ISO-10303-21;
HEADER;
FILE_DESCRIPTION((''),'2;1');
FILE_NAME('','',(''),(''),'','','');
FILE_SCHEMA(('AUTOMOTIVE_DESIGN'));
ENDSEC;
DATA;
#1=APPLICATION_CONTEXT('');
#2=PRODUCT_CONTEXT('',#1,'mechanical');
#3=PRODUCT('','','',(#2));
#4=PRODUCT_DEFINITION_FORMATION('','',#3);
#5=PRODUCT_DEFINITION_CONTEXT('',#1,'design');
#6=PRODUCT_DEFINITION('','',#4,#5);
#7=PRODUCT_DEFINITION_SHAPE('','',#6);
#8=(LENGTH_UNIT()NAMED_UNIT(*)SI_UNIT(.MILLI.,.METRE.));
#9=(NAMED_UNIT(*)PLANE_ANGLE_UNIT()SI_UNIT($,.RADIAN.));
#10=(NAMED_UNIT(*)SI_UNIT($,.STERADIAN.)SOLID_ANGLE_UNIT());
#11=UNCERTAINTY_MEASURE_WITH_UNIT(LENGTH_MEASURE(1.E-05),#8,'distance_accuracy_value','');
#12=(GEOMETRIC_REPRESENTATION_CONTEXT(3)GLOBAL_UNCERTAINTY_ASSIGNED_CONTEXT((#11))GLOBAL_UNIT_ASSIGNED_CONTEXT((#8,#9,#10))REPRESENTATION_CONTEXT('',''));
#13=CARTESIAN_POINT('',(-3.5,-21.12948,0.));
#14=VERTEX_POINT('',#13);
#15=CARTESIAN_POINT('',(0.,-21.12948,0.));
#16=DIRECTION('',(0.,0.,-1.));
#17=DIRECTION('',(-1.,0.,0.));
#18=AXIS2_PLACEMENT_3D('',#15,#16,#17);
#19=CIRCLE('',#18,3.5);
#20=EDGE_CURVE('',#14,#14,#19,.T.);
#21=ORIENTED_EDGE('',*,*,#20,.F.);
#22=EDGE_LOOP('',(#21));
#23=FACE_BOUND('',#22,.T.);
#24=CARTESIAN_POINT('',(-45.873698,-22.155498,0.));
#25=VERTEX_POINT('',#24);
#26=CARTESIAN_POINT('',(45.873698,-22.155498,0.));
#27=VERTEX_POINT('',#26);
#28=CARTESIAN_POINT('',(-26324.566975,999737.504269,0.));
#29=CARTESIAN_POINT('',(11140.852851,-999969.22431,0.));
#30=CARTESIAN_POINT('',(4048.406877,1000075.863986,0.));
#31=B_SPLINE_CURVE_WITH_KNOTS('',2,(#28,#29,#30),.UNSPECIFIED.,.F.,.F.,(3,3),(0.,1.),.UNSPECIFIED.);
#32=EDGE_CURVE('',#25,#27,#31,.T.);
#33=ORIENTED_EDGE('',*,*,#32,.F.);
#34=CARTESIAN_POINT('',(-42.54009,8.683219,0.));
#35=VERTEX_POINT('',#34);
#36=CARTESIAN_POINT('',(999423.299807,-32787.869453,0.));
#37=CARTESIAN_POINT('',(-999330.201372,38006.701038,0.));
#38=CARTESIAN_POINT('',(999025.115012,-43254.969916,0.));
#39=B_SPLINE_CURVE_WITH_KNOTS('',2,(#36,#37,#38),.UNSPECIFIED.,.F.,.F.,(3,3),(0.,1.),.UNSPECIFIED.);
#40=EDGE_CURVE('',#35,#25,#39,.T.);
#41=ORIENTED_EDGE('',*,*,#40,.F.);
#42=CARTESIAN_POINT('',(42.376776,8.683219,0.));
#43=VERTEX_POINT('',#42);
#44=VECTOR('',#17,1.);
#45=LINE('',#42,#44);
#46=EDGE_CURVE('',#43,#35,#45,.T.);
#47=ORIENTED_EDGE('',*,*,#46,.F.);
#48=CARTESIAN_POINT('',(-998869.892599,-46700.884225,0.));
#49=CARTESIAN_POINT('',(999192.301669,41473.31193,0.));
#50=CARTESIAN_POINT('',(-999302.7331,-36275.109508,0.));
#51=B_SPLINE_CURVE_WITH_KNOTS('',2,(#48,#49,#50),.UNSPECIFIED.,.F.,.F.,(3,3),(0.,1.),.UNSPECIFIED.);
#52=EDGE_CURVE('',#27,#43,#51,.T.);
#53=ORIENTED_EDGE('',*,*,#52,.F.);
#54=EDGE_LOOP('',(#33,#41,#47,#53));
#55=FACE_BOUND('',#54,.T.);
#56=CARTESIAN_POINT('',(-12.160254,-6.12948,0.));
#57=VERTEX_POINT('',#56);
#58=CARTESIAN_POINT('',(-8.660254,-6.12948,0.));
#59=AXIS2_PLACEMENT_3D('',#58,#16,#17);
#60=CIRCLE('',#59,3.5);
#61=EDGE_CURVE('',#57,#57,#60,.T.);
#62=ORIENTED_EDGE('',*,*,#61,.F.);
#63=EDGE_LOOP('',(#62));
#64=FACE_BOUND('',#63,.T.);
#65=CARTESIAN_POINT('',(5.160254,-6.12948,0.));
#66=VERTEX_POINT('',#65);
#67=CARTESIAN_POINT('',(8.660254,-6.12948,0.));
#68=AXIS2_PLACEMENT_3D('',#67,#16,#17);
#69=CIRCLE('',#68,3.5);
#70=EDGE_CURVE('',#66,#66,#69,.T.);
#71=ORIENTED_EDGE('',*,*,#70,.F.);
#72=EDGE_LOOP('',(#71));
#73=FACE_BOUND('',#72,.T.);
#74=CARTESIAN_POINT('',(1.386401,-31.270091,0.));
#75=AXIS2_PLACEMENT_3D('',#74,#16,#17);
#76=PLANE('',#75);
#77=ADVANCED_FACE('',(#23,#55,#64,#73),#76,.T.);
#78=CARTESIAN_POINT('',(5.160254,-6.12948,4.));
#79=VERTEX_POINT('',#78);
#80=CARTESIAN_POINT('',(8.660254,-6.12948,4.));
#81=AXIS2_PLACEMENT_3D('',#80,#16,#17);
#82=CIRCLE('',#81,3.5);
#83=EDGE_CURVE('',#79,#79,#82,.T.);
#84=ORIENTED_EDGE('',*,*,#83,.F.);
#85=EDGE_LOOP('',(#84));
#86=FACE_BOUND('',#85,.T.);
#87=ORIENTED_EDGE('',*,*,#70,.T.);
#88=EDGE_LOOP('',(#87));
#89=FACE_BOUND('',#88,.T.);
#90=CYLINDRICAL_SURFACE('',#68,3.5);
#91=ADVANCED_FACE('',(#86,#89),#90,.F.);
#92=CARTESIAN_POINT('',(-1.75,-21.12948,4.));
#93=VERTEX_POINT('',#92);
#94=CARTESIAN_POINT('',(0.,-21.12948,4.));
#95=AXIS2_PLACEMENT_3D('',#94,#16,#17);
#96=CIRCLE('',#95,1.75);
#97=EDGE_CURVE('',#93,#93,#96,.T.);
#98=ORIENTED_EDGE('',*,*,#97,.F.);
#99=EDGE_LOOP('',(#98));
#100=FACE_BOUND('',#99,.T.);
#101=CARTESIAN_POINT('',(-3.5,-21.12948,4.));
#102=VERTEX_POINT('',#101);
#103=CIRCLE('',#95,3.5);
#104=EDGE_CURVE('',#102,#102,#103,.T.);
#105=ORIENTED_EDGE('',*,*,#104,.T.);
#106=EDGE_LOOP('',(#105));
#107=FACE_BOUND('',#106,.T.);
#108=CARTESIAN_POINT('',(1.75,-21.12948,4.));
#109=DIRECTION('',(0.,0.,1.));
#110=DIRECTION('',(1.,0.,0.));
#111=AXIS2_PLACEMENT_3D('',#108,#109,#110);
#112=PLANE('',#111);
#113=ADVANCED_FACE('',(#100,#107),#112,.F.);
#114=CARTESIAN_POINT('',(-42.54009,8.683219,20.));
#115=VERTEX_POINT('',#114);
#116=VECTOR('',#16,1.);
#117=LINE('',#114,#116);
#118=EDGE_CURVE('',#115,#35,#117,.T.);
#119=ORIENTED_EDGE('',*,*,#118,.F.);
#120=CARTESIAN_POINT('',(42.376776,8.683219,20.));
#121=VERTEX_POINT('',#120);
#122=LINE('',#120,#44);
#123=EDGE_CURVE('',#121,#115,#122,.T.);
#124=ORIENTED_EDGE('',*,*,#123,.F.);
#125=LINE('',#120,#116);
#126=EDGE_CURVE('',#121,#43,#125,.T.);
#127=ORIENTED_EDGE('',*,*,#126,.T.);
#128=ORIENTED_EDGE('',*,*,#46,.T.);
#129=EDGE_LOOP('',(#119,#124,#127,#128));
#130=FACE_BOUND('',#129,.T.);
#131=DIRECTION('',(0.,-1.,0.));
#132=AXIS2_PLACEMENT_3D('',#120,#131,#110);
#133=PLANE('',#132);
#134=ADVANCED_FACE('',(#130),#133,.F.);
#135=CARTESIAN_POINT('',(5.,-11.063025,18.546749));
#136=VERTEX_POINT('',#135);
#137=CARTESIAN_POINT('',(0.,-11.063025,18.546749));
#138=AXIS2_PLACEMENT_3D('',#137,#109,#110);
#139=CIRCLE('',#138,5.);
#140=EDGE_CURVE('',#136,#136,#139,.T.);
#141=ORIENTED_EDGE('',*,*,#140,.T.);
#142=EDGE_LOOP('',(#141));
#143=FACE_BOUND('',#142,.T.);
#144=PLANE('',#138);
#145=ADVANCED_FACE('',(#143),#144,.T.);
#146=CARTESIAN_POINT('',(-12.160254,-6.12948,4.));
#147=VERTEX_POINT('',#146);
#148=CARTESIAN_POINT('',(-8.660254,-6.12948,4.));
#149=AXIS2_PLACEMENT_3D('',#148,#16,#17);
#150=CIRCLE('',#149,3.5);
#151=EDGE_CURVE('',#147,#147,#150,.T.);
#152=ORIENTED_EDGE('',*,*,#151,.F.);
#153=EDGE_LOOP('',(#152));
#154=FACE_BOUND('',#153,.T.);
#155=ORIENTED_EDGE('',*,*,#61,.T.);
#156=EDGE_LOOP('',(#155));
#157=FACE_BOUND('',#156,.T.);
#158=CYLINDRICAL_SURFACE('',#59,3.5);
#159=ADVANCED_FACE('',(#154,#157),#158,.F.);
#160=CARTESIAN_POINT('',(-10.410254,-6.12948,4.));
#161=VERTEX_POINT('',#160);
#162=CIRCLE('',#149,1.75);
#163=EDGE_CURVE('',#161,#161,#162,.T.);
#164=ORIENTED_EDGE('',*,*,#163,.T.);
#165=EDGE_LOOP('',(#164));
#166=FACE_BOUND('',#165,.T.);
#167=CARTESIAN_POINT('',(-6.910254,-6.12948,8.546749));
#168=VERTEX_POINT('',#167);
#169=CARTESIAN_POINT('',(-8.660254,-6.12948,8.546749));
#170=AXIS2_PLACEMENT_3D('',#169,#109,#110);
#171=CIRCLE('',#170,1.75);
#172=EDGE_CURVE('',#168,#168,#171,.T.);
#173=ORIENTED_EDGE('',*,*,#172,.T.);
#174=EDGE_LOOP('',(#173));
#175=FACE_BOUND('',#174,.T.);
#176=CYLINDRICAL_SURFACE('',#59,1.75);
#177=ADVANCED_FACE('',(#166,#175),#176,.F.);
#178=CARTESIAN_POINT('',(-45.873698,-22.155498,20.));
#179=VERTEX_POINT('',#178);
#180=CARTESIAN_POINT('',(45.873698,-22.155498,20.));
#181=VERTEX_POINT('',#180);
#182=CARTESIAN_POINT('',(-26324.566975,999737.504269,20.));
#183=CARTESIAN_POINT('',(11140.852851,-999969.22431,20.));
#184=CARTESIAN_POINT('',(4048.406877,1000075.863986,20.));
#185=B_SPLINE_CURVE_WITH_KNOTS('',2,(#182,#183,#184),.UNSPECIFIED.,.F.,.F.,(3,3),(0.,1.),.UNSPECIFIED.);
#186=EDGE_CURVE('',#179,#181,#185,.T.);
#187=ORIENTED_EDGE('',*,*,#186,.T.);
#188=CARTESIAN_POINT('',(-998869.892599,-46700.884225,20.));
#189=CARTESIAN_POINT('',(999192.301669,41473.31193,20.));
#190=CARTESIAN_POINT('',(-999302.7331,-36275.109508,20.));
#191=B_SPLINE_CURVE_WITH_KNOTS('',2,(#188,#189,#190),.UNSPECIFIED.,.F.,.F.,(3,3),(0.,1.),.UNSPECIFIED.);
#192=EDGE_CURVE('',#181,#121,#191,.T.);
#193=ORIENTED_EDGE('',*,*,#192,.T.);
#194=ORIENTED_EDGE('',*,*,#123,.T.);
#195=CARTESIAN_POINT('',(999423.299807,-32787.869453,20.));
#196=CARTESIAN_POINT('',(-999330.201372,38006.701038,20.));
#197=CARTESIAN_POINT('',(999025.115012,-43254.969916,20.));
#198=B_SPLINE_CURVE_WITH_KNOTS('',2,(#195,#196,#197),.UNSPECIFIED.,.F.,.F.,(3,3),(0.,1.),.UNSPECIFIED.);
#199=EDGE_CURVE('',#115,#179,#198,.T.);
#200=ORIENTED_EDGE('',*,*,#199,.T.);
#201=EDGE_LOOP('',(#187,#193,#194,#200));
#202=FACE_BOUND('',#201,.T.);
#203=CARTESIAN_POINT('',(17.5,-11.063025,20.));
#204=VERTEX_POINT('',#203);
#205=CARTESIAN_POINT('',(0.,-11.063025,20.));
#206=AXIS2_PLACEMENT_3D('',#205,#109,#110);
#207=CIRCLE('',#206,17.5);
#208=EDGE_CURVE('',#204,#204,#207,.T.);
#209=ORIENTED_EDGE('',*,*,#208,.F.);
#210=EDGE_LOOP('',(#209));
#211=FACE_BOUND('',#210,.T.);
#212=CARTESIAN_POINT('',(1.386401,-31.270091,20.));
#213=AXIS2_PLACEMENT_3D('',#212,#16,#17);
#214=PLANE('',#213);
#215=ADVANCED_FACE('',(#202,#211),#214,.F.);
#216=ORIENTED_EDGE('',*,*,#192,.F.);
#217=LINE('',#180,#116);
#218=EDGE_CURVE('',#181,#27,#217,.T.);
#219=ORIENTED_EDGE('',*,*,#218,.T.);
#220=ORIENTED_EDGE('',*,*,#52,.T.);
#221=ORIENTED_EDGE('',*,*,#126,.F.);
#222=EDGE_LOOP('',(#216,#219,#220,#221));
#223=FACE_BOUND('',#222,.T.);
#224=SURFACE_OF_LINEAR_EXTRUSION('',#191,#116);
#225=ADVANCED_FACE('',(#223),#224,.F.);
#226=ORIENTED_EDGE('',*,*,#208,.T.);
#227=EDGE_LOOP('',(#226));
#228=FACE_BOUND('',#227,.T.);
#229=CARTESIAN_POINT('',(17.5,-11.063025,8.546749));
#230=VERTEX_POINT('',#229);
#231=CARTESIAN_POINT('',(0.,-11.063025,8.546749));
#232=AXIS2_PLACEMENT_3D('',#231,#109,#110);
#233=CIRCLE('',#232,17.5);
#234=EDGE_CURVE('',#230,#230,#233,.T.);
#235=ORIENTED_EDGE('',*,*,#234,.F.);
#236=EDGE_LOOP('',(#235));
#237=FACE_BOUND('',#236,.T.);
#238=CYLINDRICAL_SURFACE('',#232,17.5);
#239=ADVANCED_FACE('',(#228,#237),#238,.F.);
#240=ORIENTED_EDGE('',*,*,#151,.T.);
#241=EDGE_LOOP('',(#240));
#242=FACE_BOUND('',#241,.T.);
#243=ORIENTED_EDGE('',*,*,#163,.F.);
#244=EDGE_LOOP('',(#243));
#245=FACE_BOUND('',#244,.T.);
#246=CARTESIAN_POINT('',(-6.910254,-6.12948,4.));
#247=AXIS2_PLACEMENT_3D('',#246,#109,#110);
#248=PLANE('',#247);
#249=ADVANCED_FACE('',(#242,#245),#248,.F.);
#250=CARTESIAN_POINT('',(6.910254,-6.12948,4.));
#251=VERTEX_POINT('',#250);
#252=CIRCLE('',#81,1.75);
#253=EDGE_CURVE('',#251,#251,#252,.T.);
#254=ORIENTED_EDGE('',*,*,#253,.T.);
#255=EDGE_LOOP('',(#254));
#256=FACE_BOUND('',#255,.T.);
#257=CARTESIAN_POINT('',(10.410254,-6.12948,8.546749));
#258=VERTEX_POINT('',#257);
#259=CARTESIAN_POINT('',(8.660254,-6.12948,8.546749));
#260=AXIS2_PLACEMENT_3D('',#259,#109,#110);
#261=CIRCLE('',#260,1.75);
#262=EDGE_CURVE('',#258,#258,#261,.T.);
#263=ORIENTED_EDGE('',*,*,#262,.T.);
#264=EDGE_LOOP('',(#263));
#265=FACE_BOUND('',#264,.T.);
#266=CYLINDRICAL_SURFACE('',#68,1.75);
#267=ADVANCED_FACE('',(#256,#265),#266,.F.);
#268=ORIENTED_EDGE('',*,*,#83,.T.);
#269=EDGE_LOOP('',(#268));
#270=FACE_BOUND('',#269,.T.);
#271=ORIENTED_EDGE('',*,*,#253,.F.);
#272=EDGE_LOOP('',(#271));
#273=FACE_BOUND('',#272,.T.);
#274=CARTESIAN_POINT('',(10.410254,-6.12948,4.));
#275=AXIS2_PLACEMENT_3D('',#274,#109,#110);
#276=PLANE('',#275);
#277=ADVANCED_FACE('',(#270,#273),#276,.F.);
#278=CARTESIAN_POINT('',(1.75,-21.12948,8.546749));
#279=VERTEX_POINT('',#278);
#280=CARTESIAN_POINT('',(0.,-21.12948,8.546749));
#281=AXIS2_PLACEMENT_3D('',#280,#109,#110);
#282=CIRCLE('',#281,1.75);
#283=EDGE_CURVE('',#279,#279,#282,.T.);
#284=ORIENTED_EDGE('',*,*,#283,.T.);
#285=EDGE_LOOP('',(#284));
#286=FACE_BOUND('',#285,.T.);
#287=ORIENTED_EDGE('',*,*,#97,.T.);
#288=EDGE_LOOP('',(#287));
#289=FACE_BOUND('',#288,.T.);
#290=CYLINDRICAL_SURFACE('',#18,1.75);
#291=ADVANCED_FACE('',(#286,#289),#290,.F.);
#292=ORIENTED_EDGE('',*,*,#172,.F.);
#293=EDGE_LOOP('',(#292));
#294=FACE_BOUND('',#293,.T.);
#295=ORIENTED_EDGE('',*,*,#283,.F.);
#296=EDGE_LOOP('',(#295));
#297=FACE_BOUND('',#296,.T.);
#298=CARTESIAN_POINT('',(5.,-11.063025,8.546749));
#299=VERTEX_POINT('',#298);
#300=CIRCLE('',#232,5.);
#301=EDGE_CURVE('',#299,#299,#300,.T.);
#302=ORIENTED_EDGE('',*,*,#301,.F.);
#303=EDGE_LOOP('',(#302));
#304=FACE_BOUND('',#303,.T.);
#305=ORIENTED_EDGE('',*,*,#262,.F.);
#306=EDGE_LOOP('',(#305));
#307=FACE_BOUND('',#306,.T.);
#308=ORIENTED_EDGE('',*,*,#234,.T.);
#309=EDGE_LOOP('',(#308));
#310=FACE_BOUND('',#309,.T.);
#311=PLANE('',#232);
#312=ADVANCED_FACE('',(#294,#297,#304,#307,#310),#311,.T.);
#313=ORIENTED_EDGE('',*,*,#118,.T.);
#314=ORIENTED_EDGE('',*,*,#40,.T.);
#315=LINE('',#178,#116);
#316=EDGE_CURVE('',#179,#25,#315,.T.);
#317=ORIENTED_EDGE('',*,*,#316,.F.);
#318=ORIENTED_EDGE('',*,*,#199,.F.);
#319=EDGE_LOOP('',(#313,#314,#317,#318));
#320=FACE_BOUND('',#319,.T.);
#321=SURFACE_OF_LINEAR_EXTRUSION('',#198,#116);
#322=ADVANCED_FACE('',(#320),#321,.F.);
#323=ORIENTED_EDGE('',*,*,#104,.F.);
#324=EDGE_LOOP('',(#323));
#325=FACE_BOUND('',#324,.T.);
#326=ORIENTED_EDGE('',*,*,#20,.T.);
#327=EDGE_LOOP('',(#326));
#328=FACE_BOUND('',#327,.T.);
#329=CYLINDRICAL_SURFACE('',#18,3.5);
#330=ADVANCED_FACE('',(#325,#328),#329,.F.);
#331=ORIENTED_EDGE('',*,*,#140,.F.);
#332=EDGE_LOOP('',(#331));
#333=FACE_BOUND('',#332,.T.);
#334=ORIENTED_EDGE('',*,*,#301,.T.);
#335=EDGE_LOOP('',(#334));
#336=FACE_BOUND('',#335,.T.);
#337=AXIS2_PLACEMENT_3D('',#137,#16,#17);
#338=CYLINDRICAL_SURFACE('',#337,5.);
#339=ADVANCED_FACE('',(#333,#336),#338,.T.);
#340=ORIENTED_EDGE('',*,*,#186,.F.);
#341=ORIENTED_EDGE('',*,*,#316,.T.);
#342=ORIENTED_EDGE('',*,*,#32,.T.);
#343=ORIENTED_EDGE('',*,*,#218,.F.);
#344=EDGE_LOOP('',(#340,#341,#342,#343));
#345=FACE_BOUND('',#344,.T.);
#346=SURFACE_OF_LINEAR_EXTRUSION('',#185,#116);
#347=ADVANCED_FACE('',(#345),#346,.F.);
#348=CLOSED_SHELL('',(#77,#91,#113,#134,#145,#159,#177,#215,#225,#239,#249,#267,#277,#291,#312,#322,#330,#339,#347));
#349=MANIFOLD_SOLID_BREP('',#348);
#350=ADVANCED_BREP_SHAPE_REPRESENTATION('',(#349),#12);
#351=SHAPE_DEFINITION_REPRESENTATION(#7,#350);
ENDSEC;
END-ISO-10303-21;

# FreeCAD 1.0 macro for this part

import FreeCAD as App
import Part
import Sketcher
from FreeCAD import Vector
Q = App.Units.Quantity

doc = App.newDocument("Part")
params = doc.addObject("Spreadsheet::Sheet", "Params")
for row, (alias, value) in enumerate([
    ("pad1_length", "20 mm"),
    ("sketch2_diameter", "35 mm"),
    ("pocket1_length", "11.453251 mm"),
    ("sketch3_diameter", "10 mm"),
    ("pad2_length", "10 mm"),
    ("sketch4_diameter", "3.5 mm"),
    ("hole_diameter", "3.5 mm"),
    ("hole_depth", "11 mm"),
    ("hole_cbore_diameter", "7 mm"),
    ("hole_cbore_depth", "4 mm"),
], start=1):
    params.set(f"A{row}", alias)
    params.set(f"B{row}", "=" + value)
    params.setAlias(f"B{row}", alias)

body = doc.addObject("PartDesign::Body", "Body")

sketch1 = doc.addObject("Sketcher::SketchObject", "Sketch")
body.addObject(sketch1)
sketch1.AttachmentSupport = (doc.XY_Plane, [""])
sketch1.MapMode = "FlatFace"
sketch1.addGeometry([
    Part.LineSegment(Vector(42.376776, 8.683219, 0), Vector(-42.54009, 8.683219, 0)),
    Part.BSplineCurve([Vector(-42.54009, 8.683219, 0), Vector(-61.647606, -6.072668, 0), Vector(-45.873698, -22.155498, 0)], [3, 3], [0, 1], False, 2, [1, 1, 1], False),
    Part.BSplineCurve([Vector(-45.873698, -22.155498, 0), Vector(0.203235, -40.398997, 0), Vector(45.873698, -22.155498, 0)], [3, 3], [0, 1], False, 2, [1, 1, 1], False),
    Part.BSplineCurve([Vector(45.873698, -22.155498, 0), Vector(61.713203, -6.005951, 0), Vector(42.376776, 8.683219, 0)], [3, 3], [0, 1], False, 2, [1, 1, 1], False),
], False)
sketch1.addConstraint([
    Sketcher.Constraint("Block", 1),
    Sketcher.Constraint("Block", 2),
    Sketcher.Constraint("Block", 3),
    Sketcher.Constraint("Coincident", 0, 2, 1, 1),
    Sketcher.Constraint("Coincident", 3, 2, 0, 1),
])
pad1 = doc.addObject("PartDesign::Pad", "Pad")
body.addObject(pad1)
pad1.Profile = sketch1
pad1.setExpression("Length", "Params.pad1_length")

sketch2 = doc.addObject("Sketcher::SketchObject", "Sketch001")
body.addObject(sketch2)
sketch2.AttachmentSupport = (doc.XY_Plane, [""])
sketch2.MapMode = "FlatFace"
sketch2.AttachmentOffset = App.Placement(Vector(0, 0, 20), App.Rotation())
sketch2.addGeometry(Part.Circle(Vector(0, -11, 0), Vector(0, 0, 1), 18), False)
sketch2.addConstraint([
    Sketcher.Constraint("PointOnObject", 0, 3, -2),
    Sketcher.Constraint("Diameter", 0, Q("35 mm")),
    Sketcher.Constraint("DistanceY", 0, 3, -1, 1, Q("11.063025 mm")),
])
sketch2.setExpression("Constraints[1]", "Params.sketch2_diameter")
pocket1 = doc.addObject("PartDesign::Pocket", "Pocket")
body.addObject(pocket1)
pocket1.Profile = sketch2
pocket1.setExpression("Length", "Params.pocket1_length")

sketch3 = doc.addObject("Sketcher::SketchObject", "Sketch002")
body.addObject(sketch3)
sketch3.AttachmentSupport = (doc.XY_Plane, [""])
sketch3.MapMode = "FlatFace"
sketch3.AttachmentOffset = App.Placement(Vector(0, 0, 8.546749), App.Rotation())
sketch3.addGeometry(Part.Circle(Vector(0, -11, 0), Vector(0, 0, 1), 5), False)
sketch3.addConstraint([
    Sketcher.Constraint("PointOnObject", 0, 3, -2),
    Sketcher.Constraint("Diameter", 0, Q("10 mm")),
    Sketcher.Constraint("DistanceY", 0, 3, -1, 1, Q("11.063025 mm")),
])
sketch3.setExpression("Constraints[1]", "Params.sketch3_diameter")
pad2 = doc.addObject("PartDesign::Pad", "Pad001")
body.addObject(pad2)
pad2.Profile = sketch3
pad2.setExpression("Length", "Params.pad2_length")

sketch4 = doc.addObject("Sketcher::SketchObject", "Sketch003")
body.addObject(sketch4)
sketch4.AttachmentSupport = (doc.XY_Plane, [""])
sketch4.MapMode = "FlatFace"
sketch4.addGeometry([
    Part.Circle(Vector(8.7, -6.1, 0), Vector(0, 0, 1), 1.8),
    Part.Circle(Vector(0, -21.1, 0), Vector(0, 0, 1), 1.8),
    Part.Circle(Vector(-8.7, -6.1, 0), Vector(0, 0, 1), 1.8),
], False)
sketch4.addConstraint([
    Sketcher.Constraint("Equal", 0, 1),
    Sketcher.Constraint("Equal", 1, 2),
    Sketcher.Constraint("Symmetric", 0, 3, 2, 3, -2),
    Sketcher.Constraint("PointOnObject", 1, 3, -2),
    Sketcher.Constraint("Diameter", 0, Q("3.5 mm")),
    Sketcher.Constraint("DistanceY", 1, 3, 0, 3, Q("15 mm")),
    Sketcher.Constraint("DistanceY", 0, 3, -1, 1, Q("6.12948 mm")),
    Sketcher.Constraint("DistanceX", 2, 3, 0, 3, Q("17.320508 mm")),
])
sketch4.setExpression("Constraints[4]", "Params.sketch4_diameter")
doc.recompute()
hole = doc.addObject("PartDesign::Hole", "Hole")
body.addObject(hole)
hole.Profile = sketch4
hole.ThreadType = "None"
hole.setExpression("Diameter", "Params.hole_diameter")
hole.DepthType = "Dimension"
hole.setExpression("Depth", "Params.hole_depth")
hole.DrillPoint = "Angled"
hole.DrillPointAngle = 90
hole.HoleCutType = "Counterbore"
hole.setExpression("HoleCutDiameter", "Params.hole_cbore_diameter")
hole.setExpression("HoleCutDepth", "Params.hole_cbore_depth")
hole.Reversed = True

doc.recompute()
